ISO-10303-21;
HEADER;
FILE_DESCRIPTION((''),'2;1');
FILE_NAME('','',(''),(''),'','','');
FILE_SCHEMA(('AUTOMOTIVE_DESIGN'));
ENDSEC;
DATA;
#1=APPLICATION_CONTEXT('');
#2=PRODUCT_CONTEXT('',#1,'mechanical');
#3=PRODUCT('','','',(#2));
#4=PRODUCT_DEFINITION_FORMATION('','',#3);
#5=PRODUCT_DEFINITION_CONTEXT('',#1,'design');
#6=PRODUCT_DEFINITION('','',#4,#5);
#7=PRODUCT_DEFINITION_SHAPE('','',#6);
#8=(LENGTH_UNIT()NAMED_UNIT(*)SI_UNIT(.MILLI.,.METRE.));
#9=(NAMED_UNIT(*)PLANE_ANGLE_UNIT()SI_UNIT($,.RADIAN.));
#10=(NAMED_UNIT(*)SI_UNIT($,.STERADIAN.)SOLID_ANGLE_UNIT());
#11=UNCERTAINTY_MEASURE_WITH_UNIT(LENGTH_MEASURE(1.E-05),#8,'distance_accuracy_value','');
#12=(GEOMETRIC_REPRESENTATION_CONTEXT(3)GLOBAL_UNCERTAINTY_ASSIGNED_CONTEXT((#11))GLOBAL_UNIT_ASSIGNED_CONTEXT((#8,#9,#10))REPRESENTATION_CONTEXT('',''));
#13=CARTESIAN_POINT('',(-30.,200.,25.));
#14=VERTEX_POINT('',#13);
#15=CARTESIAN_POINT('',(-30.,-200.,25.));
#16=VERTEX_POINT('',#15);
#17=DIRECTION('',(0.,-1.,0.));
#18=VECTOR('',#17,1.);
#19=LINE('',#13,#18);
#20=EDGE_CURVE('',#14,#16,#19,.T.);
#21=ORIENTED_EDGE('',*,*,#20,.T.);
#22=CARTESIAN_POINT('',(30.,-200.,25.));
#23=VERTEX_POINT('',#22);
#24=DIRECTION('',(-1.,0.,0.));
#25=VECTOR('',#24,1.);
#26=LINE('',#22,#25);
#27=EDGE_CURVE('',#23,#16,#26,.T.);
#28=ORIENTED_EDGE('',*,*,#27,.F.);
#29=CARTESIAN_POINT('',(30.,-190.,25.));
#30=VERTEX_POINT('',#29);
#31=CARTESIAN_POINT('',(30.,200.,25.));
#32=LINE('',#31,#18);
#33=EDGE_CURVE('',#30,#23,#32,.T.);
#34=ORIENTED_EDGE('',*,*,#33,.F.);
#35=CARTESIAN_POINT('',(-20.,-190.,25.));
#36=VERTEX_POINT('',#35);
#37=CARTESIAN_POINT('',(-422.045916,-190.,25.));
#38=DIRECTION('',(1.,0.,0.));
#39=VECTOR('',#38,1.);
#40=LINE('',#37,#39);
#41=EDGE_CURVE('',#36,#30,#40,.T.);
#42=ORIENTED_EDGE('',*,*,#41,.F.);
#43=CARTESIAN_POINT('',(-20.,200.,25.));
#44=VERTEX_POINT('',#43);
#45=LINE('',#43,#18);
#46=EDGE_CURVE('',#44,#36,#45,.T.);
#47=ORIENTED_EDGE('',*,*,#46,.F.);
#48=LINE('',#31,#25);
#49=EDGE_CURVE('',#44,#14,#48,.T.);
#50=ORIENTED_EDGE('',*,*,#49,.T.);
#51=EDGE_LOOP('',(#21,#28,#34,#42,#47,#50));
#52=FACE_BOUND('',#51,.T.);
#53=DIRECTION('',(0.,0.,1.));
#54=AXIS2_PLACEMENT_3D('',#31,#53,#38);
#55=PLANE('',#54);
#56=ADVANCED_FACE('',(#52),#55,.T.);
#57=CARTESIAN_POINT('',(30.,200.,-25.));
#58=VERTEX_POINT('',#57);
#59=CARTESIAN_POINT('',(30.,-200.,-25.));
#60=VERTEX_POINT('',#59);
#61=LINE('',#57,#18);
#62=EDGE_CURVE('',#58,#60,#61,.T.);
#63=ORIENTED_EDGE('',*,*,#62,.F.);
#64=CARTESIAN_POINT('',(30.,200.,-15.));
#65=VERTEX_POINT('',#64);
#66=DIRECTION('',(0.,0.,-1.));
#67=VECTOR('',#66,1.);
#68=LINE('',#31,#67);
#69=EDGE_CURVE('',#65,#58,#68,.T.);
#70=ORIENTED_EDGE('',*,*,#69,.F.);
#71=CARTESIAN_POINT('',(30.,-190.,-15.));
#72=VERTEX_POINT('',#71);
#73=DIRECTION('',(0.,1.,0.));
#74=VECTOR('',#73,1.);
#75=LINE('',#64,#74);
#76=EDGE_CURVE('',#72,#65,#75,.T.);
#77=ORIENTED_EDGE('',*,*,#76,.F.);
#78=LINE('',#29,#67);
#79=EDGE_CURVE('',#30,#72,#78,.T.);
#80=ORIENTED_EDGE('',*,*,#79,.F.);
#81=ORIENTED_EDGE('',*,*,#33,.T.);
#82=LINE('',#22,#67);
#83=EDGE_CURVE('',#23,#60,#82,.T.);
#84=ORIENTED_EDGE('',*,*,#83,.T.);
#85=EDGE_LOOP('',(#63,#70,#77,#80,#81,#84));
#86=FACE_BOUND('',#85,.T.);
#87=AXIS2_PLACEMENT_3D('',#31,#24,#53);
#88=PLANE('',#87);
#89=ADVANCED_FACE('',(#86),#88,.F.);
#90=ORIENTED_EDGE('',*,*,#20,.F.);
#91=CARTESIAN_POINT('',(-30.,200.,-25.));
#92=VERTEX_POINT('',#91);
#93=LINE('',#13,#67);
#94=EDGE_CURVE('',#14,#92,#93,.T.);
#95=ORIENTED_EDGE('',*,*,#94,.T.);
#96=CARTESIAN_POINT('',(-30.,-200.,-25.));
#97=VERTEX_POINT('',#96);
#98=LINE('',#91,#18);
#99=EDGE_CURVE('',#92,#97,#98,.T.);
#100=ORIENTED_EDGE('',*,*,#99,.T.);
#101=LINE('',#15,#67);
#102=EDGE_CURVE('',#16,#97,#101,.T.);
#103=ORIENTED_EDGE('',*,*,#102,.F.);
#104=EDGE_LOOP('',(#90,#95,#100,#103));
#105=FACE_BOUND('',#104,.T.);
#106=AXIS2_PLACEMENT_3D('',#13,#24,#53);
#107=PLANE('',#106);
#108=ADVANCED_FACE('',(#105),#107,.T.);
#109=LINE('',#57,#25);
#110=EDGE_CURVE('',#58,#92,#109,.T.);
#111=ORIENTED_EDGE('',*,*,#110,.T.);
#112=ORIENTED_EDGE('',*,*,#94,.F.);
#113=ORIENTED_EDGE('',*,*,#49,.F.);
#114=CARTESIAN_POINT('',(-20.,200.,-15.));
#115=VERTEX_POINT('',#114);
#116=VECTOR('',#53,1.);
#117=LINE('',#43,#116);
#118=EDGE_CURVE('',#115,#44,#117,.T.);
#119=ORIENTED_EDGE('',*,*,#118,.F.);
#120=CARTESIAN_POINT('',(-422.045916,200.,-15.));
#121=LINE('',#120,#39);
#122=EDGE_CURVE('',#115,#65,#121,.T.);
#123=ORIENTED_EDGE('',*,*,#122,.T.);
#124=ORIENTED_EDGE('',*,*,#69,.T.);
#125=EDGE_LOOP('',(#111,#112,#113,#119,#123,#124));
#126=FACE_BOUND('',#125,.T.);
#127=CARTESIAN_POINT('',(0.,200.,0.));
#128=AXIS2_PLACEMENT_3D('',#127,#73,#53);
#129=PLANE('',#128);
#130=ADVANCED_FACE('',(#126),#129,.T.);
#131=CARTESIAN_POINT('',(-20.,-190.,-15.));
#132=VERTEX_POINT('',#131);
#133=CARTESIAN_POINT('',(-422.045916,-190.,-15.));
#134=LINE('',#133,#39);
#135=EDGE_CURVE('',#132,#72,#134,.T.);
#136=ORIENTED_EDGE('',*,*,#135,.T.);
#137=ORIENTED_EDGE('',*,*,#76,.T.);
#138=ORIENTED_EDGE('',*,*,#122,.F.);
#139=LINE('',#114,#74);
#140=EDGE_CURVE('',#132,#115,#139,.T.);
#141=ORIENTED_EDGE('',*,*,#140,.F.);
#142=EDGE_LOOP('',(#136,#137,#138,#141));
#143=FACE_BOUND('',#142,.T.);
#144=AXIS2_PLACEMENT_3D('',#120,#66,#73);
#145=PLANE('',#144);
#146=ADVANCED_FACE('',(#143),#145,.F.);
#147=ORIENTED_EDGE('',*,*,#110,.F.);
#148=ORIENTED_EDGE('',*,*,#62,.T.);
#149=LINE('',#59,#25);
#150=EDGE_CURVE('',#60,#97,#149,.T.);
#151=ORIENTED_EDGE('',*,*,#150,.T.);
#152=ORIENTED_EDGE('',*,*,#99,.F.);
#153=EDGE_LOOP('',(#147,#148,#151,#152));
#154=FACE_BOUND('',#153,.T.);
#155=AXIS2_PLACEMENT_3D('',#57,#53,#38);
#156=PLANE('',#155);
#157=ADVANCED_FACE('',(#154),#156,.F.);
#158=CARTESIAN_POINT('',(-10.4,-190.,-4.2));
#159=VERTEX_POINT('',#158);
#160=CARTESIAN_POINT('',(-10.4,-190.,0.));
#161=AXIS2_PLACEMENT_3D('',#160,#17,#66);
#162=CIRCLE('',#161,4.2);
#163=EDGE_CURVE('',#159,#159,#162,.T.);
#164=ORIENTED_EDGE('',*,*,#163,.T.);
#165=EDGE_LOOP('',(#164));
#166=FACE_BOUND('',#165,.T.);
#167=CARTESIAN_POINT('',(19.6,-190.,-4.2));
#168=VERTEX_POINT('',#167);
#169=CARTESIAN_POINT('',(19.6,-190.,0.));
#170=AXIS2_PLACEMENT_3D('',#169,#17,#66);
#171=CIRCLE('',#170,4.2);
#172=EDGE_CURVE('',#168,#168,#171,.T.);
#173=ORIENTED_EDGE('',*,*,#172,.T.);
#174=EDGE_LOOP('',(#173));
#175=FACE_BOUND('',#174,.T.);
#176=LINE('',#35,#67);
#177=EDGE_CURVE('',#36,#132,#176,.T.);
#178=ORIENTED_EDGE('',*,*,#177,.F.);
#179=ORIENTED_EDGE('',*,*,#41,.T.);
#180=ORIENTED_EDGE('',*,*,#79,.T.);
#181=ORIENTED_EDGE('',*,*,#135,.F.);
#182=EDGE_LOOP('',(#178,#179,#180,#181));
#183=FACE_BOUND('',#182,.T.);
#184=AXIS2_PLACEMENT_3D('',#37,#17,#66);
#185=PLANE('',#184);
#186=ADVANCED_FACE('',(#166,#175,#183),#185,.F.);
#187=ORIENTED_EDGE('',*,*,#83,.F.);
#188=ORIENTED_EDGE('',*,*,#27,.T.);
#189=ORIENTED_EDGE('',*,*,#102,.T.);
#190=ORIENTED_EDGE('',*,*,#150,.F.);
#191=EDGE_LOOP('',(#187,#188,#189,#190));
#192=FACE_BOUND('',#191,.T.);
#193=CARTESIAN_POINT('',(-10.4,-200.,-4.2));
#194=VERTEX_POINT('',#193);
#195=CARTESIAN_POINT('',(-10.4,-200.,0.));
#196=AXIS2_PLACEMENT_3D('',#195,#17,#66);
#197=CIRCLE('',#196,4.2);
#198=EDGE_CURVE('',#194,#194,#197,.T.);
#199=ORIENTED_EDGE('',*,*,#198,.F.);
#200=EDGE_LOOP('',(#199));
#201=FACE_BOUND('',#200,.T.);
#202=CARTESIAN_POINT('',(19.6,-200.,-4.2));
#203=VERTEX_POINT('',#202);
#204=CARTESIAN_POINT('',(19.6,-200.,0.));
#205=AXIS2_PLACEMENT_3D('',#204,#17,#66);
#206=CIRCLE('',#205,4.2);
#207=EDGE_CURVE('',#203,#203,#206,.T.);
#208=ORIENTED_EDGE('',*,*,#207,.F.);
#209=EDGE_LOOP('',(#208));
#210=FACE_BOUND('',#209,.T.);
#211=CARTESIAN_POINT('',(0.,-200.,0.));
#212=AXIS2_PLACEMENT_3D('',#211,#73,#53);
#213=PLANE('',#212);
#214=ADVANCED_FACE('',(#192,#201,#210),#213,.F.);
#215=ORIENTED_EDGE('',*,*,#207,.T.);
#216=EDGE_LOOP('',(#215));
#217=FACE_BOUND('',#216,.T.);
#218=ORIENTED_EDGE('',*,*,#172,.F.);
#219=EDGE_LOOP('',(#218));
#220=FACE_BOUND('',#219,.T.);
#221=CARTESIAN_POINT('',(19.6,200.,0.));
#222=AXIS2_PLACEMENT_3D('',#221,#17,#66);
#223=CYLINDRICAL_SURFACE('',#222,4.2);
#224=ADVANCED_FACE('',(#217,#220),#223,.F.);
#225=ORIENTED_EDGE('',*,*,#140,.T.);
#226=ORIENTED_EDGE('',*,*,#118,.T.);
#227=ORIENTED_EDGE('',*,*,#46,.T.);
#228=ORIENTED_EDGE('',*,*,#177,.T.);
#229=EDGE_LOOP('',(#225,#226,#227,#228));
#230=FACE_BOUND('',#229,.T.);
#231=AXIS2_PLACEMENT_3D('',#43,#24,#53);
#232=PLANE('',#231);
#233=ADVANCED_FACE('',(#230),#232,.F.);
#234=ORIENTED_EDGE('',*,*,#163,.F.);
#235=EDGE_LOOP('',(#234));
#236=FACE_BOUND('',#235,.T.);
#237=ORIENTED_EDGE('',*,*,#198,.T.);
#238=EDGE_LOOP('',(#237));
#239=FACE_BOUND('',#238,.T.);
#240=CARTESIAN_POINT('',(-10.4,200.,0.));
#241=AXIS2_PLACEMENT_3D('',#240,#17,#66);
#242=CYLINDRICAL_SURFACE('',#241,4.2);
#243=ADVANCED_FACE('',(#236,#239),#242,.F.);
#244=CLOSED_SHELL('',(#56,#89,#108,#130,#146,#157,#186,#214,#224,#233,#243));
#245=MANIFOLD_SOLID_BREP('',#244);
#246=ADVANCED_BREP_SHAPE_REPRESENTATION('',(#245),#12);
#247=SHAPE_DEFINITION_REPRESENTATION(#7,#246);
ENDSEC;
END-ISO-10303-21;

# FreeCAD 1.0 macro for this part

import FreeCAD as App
import Part
import Sketcher
Q = App.Units.Quantity

doc = App.newDocument("Part")
body = doc.addObject("PartDesign::Body", "Body")

sketch1 = body.newObject("Sketcher::SketchObject", "Sketch")
sketch1.AttachmentSupport = (doc.getObject("XZ_Plane"), [""])
sketch1.MapMode = "FlatFace"
sketch1.addGeometry(Part.LineSegment(App.Vector(-30, -25, 0), App.Vector(-30, 25, 0)), False)
sketch1.addGeometry(Part.LineSegment(App.Vector(-30, 25, 0), App.Vector(30, 25, 0)), False)
sketch1.addGeometry(Part.LineSegment(App.Vector(30, 25, 0), App.Vector(30, -25, 0)), False)
sketch1.addGeometry(Part.LineSegment(App.Vector(30, -25, 0), App.Vector(-30, -25, 0)), False)
sketch1.addConstraint(Sketcher.Constraint("Coincident", 0, 2, 1, 1))
sketch1.addConstraint(Sketcher.Constraint("Coincident", 1, 2, 2, 1))
sketch1.addConstraint(Sketcher.Constraint("Coincident", 2, 2, 3, 1))
sketch1.addConstraint(Sketcher.Constraint("Coincident", 3, 2, 0, 1))
sketch1.addConstraint(Sketcher.Constraint("Vertical", 0))
sketch1.addConstraint(Sketcher.Constraint("Horizontal", 1))
sketch1.addConstraint(Sketcher.Constraint("Vertical", 2))
sketch1.addConstraint(Sketcher.Constraint("Horizontal", 3))
sketch1.addConstraint(Sketcher.Constraint("Symmetric", 0, 2, 2, 2, -1, 1))
sketch1.addConstraint(Sketcher.Constraint("DistanceX", 1, 1, 1, 2, Q("60 mm")))
sketch1.addConstraint(Sketcher.Constraint("DistanceY", 0, 1, 0, 2, Q("50 mm")))
pad1 = body.newObject("PartDesign::Pad", "Pad")
pad1.Profile = sketch1
pad1.Length = 400
pad1.Midplane = True

sketch2 = body.newObject("Sketcher::SketchObject", "Sketch001")
sketch2.AttachmentSupport = (doc.getObject("YZ_Plane"), [""])
sketch2.MapMode = "FlatFace"
sketch2.AttachmentOffset = App.Placement(App.Vector(0, 0, 30), App.Rotation())
sketch2.addGeometry(Part.LineSegment(App.Vector(200, 25, 0), App.Vector(-190, 25, 0)), False)
sketch2.addGeometry(Part.LineSegment(App.Vector(-190, 25, 0), App.Vector(-190, -15, 0)), False)
sketch2.addGeometry(Part.LineSegment(App.Vector(-190, -15, 0), App.Vector(200, -15, 0)), False)
sketch2.addGeometry(Part.LineSegment(App.Vector(200, -15, 0), App.Vector(200, 25, 0)), False)
sketch2.addConstraint(Sketcher.Constraint("Coincident", 0, 2, 1, 1))
sketch2.addConstraint(Sketcher.Constraint("Coincident", 1, 2, 2, 1))
sketch2.addConstraint(Sketcher.Constraint("Coincident", 2, 2, 3, 1))
sketch2.addConstraint(Sketcher.Constraint("Coincident", 3, 2, 0, 1))
sketch2.addConstraint(Sketcher.Constraint("Horizontal", 0))
sketch2.addConstraint(Sketcher.Constraint("Vertical", 1))
sketch2.addConstraint(Sketcher.Constraint("Horizontal", 2))
sketch2.addConstraint(Sketcher.Constraint("Vertical", 3))
sketch2.addConstraint(Sketcher.Constraint("DistanceX", 0, 2, 0, 1, Q("390 mm")))
sketch2.addConstraint(Sketcher.Constraint("DistanceY", 1, 2, 1, 1, Q("40 mm")))
sketch2.addConstraint(Sketcher.Constraint("DistanceX", 0, 2, -1, 1, Q("190 mm")))
sketch2.addConstraint(Sketcher.Constraint("DistanceY", -1, 1, 0, 2, Q("25 mm")))
pocket1 = body.newObject("PartDesign::Pocket", "Pocket")
pocket1.Profile = sketch2
pocket1.Length = 50

sketch3 = body.newObject("Sketcher::SketchObject", "Sketch002")
sketch3.AttachmentSupport = (doc.getObject("XZ_Plane"), [""])
sketch3.MapMode = "FlatFace"
sketch3.AttachmentOffset = App.Placement(App.Vector(0, 0, 200), App.Rotation())
sketch3.addGeometry(Part.Circle(App.Vector(-10.4, 0, 0), App.Vector(0, 0, 1), 4.2), False)
sketch3.addGeometry(Part.Circle(App.Vector(19.6, 0, 0), App.Vector(0, 0, 1), 4.2), False)
sketch3.addConstraint(Sketcher.Constraint("Equal", 0, 1))
sketch3.addConstraint(Sketcher.Constraint("PointOnObject", 0, 3, -1))
sketch3.addConstraint(Sketcher.Constraint("PointOnObject", 1, 3, -1))
sketch3.addConstraint(Sketcher.Constraint("Diameter", 0, Q("8.4 mm")))
sketch3.addConstraint(Sketcher.Constraint("DistanceX", 0, 3, 1, 3, Q("30 mm")))
sketch3.addConstraint(Sketcher.Constraint("DistanceX", 0, 3, -1, 1, Q("10.4 mm")))
pocket2 = body.newObject("PartDesign::Pocket", "Pocket001")
pocket2.Profile = sketch3
pocket2.Type = "ThroughAll"

doc.recompute()
